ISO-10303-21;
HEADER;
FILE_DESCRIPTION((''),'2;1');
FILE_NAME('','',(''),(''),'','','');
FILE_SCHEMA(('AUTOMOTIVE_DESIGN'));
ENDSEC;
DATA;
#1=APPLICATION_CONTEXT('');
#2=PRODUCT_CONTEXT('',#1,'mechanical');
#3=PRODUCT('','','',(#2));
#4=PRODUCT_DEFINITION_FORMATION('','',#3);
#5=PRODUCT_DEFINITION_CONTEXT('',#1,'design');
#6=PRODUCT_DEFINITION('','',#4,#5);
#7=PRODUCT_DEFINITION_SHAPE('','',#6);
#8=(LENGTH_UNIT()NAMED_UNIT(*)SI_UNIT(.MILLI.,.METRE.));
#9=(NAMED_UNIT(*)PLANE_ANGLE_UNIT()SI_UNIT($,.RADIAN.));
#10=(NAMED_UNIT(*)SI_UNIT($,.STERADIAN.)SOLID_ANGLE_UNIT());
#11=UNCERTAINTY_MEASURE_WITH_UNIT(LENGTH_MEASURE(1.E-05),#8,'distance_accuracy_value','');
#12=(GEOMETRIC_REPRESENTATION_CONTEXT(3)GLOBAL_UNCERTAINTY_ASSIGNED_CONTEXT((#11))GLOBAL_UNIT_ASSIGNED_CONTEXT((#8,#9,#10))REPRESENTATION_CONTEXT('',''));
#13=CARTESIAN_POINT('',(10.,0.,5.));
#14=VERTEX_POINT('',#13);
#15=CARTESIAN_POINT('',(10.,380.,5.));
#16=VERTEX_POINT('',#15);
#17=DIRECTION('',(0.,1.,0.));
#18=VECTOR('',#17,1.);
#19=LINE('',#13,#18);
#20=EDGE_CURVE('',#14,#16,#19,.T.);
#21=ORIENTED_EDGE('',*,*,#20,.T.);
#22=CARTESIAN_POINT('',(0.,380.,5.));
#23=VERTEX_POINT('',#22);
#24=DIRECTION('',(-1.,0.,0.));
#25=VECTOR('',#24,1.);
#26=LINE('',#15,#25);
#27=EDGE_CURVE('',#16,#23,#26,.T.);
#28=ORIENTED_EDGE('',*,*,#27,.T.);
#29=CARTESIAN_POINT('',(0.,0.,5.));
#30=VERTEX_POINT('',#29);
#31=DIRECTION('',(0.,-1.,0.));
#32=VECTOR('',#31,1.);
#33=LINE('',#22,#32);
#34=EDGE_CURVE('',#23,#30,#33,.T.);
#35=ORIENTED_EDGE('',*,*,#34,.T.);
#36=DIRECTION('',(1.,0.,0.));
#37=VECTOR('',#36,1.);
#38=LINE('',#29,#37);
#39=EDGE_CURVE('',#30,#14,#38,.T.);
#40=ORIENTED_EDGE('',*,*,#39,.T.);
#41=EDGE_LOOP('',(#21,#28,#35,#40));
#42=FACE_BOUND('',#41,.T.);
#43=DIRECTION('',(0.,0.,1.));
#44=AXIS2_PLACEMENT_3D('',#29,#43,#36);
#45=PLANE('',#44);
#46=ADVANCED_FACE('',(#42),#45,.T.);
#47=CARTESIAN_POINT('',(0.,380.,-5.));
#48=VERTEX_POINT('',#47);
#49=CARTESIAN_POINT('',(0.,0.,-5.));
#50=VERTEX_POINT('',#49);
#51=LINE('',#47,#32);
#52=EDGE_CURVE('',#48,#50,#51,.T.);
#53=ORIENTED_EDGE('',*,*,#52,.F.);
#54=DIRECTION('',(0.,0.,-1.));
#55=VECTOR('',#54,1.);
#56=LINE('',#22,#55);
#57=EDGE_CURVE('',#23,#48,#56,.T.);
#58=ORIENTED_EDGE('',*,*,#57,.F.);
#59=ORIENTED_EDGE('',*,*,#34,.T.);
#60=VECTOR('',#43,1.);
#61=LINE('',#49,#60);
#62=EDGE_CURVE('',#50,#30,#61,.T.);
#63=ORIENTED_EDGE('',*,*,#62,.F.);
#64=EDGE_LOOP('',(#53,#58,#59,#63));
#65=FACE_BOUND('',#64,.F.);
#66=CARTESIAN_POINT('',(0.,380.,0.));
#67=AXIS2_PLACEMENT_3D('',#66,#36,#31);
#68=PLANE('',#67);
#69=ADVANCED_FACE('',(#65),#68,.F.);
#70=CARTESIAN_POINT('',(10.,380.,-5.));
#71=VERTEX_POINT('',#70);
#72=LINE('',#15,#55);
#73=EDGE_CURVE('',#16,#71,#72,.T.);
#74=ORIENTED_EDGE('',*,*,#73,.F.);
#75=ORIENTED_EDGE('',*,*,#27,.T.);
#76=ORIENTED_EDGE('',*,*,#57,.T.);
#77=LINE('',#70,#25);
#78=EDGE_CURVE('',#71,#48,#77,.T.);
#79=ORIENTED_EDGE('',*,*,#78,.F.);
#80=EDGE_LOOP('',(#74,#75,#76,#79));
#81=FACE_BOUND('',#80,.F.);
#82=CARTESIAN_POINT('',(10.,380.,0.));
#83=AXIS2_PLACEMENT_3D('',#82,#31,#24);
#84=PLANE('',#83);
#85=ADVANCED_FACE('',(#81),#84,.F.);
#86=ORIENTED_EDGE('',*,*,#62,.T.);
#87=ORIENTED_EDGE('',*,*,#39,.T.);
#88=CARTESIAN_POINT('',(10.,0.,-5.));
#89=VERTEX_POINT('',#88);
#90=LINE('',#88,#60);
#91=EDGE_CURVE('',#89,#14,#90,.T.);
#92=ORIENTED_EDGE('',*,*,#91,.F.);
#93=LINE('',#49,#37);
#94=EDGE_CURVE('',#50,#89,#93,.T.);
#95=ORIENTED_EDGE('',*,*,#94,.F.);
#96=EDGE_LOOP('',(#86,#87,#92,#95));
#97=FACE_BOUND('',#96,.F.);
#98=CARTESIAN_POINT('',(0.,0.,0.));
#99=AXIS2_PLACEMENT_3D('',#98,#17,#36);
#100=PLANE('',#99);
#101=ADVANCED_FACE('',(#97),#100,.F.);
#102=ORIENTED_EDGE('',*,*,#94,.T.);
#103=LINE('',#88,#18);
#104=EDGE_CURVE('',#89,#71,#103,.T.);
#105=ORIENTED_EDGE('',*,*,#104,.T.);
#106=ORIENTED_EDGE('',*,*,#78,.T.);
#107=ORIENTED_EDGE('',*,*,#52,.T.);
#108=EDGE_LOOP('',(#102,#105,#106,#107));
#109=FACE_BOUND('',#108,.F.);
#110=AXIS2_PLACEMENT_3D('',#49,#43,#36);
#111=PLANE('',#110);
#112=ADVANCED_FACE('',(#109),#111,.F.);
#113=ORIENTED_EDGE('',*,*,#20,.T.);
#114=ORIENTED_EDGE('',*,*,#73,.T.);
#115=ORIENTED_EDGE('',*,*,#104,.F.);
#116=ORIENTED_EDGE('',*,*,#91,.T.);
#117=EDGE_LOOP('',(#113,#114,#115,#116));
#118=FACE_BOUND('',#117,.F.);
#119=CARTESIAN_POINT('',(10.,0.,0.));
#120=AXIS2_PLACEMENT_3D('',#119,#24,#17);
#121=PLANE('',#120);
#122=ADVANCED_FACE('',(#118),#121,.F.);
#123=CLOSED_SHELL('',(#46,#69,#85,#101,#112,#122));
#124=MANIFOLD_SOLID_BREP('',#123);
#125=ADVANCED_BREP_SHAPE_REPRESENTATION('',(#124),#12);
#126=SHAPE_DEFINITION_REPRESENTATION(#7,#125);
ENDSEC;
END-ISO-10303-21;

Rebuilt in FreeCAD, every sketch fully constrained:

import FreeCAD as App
import Part
import Sketcher

V = App.Vector


def add_polygon(sketch, points):
    """Adds a closed chain of lines whose ends are joined by coincident constraints."""
    first, n = sketch.GeometryCount, len(points)
    for a, b in zip(points, points[1:] + points[:1]):
        sketch.addGeometry(Part.LineSegment(App.Vector(*a, 0), App.Vector(*b, 0)), False)
    for i in range(n):
        sketch.addConstraint(Sketcher.Constraint("Coincident", first + i, 2, first + (i + 1) % n, 1))

doc = App.newDocument("Part")
body = doc.addObject("PartDesign::Body", "Body")

# Sketch on XY plane
sketch1 = doc.addObject("Sketcher::SketchObject", "Sketch")
body.addObject(sketch1)
sketch1.AttachmentSupport = (doc.XY_Plane, [""])
sketch1.MapMode = "FlatFace"
add_polygon(sketch1, [(0, 380), (0, 0), (10, 0), (10, 380)])  # lines 0-3
sketch1.addConstraint([
    Sketcher.Constraint("Vertical", 0),
    Sketcher.Constraint("Horizontal", 1),
    Sketcher.Constraint("Vertical", 2),
    Sketcher.Constraint("Horizontal", 3),
    Sketcher.Constraint("Coincident", 0, 2, -1, 1),
    Sketcher.Constraint("DistanceX", 1, 1, 1, 2, 10.0),
    Sketcher.Constraint("DistanceY", 0, 2, 0, 1, 380.0),
])
pad1 = doc.addObject("PartDesign::Pad", "Pad")
body.addObject(pad1)
pad1.Profile = sketch1
pad1.Length = 10
pad1.Midplane = True

doc.recompute()
